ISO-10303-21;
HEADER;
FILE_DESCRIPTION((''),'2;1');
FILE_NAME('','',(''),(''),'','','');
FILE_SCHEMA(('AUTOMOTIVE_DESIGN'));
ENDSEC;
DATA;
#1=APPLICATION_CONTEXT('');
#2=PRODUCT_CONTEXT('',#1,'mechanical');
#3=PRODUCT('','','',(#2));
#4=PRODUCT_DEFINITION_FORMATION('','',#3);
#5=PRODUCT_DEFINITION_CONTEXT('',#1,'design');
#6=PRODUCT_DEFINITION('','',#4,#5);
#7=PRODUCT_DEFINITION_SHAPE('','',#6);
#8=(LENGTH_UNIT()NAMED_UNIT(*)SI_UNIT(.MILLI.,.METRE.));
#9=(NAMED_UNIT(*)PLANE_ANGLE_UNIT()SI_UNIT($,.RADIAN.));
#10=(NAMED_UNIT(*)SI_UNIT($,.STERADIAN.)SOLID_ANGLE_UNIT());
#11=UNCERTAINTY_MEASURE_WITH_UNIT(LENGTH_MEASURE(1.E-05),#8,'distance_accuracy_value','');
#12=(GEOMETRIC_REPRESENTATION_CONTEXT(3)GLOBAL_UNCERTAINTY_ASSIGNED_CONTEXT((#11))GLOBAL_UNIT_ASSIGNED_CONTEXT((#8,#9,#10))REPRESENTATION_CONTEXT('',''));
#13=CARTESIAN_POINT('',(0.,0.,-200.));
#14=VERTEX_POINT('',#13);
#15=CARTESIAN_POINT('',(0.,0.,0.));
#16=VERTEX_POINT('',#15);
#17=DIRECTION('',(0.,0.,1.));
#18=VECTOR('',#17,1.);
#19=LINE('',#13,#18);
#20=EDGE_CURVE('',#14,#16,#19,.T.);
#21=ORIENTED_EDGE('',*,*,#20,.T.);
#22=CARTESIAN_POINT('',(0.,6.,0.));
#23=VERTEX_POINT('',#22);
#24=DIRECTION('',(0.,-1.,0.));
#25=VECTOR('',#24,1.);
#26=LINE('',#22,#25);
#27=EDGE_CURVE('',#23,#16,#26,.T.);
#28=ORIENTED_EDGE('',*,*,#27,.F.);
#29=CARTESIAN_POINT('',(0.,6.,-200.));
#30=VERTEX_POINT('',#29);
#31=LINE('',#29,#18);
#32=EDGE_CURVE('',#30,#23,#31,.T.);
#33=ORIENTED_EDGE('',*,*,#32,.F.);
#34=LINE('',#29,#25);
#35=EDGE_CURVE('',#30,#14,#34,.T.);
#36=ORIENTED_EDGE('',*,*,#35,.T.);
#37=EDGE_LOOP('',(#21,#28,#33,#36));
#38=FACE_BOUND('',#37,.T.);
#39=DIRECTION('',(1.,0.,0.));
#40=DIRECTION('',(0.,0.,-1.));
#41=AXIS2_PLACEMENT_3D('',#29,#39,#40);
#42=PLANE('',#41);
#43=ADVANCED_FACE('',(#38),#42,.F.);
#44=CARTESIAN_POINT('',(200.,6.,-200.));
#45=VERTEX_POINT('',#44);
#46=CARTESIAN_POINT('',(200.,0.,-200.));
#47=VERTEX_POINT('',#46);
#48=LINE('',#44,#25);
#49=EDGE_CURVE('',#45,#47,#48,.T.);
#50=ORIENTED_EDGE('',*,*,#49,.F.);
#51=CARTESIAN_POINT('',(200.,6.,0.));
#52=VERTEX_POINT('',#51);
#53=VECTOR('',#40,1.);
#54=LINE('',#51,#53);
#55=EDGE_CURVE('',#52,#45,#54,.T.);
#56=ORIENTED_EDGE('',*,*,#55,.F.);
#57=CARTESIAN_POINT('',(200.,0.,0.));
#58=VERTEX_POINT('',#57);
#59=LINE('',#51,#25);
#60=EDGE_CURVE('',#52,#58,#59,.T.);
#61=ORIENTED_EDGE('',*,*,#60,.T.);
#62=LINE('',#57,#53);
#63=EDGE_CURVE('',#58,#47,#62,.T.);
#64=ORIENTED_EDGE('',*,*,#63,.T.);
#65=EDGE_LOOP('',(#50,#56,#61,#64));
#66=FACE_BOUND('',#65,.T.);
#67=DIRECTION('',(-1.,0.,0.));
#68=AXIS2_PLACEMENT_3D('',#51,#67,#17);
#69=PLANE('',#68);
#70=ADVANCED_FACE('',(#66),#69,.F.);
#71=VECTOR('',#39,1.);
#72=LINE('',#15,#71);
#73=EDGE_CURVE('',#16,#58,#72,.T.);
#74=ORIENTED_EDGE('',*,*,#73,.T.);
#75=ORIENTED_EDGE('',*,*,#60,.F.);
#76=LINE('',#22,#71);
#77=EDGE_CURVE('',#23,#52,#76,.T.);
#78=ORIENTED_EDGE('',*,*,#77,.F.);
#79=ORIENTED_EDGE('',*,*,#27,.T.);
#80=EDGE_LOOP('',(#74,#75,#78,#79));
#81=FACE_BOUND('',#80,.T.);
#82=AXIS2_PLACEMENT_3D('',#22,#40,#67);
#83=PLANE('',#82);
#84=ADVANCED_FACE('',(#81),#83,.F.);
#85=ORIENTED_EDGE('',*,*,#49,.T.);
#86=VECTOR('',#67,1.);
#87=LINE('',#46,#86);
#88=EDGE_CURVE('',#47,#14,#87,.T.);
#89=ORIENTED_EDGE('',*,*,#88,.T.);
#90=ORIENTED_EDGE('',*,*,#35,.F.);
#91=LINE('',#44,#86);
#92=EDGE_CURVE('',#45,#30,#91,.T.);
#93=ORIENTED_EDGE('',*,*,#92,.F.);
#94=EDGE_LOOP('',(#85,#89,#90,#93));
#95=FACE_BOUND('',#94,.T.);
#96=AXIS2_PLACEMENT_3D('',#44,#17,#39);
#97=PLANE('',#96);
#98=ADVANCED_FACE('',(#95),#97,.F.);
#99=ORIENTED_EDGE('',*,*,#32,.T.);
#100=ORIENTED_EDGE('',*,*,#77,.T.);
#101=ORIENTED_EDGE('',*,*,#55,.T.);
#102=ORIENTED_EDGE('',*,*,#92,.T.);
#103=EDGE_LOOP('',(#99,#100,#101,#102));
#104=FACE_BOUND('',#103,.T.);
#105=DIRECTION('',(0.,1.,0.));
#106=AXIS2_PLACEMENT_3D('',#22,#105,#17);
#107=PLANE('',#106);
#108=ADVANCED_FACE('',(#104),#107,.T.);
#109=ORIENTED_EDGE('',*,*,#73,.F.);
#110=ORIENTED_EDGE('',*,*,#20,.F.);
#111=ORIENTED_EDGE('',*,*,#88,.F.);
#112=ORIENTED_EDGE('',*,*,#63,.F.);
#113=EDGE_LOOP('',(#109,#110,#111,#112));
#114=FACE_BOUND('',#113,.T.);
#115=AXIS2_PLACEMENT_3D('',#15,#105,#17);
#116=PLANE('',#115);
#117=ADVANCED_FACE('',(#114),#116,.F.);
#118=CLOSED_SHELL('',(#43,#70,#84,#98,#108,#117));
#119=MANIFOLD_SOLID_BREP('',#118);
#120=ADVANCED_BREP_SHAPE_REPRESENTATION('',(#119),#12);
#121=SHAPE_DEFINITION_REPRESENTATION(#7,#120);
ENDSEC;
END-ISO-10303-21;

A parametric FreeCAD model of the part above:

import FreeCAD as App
import Part
import Sketcher
from FreeCAD import Vector


def add_polygon(sketch, points):
    """Adds a closed chain of lines whose ends are joined by coincident constraints."""
    first, n = sketch.GeometryCount, len(points)
    for a, b in zip(points, points[1:] + points[:1]):
        sketch.addGeometry(Part.LineSegment(App.Vector(*a, 0), App.Vector(*b, 0)), False)
    for i in range(n):
        sketch.addConstraint(Sketcher.Constraint("Coincident", first + i, 2, first + (i + 1) % n, 1))

doc = App.newDocument("Part")
body = doc.addObject("PartDesign::Body", "Body")

# Sketch on XZ plane
sketch1 = doc.addObject("Sketcher::SketchObject", "Sketch")
body.addObject(sketch1)
sketch1.AttachmentSupport = (doc.XZ_Plane, [""])
sketch1.MapMode = "FlatFace"
add_polygon(sketch1, [(0, -200), (0, 0), (200, 0), (200, -200)])  # lines 0-3
sketch1.addConstraint([
    Sketcher.Constraint("Vertical", 0),
    Sketcher.Constraint("Horizontal", 1),
    Sketcher.Constraint("Vertical", 2),
    Sketcher.Constraint("Horizontal", 3),
    Sketcher.Constraint("Coincident", 0, 2, -1, 1),
    Sketcher.Constraint("Equal", 3, 0),
    Sketcher.Constraint("DistanceX", 1, 1, 1, 2, 200.0),
])
pad1 = doc.addObject("PartDesign::Pad", "Pad")
body.addObject(pad1)
pad1.Profile = sketch1
pad1.Length = 6
pad1.Reversed = True

doc.recompute()
